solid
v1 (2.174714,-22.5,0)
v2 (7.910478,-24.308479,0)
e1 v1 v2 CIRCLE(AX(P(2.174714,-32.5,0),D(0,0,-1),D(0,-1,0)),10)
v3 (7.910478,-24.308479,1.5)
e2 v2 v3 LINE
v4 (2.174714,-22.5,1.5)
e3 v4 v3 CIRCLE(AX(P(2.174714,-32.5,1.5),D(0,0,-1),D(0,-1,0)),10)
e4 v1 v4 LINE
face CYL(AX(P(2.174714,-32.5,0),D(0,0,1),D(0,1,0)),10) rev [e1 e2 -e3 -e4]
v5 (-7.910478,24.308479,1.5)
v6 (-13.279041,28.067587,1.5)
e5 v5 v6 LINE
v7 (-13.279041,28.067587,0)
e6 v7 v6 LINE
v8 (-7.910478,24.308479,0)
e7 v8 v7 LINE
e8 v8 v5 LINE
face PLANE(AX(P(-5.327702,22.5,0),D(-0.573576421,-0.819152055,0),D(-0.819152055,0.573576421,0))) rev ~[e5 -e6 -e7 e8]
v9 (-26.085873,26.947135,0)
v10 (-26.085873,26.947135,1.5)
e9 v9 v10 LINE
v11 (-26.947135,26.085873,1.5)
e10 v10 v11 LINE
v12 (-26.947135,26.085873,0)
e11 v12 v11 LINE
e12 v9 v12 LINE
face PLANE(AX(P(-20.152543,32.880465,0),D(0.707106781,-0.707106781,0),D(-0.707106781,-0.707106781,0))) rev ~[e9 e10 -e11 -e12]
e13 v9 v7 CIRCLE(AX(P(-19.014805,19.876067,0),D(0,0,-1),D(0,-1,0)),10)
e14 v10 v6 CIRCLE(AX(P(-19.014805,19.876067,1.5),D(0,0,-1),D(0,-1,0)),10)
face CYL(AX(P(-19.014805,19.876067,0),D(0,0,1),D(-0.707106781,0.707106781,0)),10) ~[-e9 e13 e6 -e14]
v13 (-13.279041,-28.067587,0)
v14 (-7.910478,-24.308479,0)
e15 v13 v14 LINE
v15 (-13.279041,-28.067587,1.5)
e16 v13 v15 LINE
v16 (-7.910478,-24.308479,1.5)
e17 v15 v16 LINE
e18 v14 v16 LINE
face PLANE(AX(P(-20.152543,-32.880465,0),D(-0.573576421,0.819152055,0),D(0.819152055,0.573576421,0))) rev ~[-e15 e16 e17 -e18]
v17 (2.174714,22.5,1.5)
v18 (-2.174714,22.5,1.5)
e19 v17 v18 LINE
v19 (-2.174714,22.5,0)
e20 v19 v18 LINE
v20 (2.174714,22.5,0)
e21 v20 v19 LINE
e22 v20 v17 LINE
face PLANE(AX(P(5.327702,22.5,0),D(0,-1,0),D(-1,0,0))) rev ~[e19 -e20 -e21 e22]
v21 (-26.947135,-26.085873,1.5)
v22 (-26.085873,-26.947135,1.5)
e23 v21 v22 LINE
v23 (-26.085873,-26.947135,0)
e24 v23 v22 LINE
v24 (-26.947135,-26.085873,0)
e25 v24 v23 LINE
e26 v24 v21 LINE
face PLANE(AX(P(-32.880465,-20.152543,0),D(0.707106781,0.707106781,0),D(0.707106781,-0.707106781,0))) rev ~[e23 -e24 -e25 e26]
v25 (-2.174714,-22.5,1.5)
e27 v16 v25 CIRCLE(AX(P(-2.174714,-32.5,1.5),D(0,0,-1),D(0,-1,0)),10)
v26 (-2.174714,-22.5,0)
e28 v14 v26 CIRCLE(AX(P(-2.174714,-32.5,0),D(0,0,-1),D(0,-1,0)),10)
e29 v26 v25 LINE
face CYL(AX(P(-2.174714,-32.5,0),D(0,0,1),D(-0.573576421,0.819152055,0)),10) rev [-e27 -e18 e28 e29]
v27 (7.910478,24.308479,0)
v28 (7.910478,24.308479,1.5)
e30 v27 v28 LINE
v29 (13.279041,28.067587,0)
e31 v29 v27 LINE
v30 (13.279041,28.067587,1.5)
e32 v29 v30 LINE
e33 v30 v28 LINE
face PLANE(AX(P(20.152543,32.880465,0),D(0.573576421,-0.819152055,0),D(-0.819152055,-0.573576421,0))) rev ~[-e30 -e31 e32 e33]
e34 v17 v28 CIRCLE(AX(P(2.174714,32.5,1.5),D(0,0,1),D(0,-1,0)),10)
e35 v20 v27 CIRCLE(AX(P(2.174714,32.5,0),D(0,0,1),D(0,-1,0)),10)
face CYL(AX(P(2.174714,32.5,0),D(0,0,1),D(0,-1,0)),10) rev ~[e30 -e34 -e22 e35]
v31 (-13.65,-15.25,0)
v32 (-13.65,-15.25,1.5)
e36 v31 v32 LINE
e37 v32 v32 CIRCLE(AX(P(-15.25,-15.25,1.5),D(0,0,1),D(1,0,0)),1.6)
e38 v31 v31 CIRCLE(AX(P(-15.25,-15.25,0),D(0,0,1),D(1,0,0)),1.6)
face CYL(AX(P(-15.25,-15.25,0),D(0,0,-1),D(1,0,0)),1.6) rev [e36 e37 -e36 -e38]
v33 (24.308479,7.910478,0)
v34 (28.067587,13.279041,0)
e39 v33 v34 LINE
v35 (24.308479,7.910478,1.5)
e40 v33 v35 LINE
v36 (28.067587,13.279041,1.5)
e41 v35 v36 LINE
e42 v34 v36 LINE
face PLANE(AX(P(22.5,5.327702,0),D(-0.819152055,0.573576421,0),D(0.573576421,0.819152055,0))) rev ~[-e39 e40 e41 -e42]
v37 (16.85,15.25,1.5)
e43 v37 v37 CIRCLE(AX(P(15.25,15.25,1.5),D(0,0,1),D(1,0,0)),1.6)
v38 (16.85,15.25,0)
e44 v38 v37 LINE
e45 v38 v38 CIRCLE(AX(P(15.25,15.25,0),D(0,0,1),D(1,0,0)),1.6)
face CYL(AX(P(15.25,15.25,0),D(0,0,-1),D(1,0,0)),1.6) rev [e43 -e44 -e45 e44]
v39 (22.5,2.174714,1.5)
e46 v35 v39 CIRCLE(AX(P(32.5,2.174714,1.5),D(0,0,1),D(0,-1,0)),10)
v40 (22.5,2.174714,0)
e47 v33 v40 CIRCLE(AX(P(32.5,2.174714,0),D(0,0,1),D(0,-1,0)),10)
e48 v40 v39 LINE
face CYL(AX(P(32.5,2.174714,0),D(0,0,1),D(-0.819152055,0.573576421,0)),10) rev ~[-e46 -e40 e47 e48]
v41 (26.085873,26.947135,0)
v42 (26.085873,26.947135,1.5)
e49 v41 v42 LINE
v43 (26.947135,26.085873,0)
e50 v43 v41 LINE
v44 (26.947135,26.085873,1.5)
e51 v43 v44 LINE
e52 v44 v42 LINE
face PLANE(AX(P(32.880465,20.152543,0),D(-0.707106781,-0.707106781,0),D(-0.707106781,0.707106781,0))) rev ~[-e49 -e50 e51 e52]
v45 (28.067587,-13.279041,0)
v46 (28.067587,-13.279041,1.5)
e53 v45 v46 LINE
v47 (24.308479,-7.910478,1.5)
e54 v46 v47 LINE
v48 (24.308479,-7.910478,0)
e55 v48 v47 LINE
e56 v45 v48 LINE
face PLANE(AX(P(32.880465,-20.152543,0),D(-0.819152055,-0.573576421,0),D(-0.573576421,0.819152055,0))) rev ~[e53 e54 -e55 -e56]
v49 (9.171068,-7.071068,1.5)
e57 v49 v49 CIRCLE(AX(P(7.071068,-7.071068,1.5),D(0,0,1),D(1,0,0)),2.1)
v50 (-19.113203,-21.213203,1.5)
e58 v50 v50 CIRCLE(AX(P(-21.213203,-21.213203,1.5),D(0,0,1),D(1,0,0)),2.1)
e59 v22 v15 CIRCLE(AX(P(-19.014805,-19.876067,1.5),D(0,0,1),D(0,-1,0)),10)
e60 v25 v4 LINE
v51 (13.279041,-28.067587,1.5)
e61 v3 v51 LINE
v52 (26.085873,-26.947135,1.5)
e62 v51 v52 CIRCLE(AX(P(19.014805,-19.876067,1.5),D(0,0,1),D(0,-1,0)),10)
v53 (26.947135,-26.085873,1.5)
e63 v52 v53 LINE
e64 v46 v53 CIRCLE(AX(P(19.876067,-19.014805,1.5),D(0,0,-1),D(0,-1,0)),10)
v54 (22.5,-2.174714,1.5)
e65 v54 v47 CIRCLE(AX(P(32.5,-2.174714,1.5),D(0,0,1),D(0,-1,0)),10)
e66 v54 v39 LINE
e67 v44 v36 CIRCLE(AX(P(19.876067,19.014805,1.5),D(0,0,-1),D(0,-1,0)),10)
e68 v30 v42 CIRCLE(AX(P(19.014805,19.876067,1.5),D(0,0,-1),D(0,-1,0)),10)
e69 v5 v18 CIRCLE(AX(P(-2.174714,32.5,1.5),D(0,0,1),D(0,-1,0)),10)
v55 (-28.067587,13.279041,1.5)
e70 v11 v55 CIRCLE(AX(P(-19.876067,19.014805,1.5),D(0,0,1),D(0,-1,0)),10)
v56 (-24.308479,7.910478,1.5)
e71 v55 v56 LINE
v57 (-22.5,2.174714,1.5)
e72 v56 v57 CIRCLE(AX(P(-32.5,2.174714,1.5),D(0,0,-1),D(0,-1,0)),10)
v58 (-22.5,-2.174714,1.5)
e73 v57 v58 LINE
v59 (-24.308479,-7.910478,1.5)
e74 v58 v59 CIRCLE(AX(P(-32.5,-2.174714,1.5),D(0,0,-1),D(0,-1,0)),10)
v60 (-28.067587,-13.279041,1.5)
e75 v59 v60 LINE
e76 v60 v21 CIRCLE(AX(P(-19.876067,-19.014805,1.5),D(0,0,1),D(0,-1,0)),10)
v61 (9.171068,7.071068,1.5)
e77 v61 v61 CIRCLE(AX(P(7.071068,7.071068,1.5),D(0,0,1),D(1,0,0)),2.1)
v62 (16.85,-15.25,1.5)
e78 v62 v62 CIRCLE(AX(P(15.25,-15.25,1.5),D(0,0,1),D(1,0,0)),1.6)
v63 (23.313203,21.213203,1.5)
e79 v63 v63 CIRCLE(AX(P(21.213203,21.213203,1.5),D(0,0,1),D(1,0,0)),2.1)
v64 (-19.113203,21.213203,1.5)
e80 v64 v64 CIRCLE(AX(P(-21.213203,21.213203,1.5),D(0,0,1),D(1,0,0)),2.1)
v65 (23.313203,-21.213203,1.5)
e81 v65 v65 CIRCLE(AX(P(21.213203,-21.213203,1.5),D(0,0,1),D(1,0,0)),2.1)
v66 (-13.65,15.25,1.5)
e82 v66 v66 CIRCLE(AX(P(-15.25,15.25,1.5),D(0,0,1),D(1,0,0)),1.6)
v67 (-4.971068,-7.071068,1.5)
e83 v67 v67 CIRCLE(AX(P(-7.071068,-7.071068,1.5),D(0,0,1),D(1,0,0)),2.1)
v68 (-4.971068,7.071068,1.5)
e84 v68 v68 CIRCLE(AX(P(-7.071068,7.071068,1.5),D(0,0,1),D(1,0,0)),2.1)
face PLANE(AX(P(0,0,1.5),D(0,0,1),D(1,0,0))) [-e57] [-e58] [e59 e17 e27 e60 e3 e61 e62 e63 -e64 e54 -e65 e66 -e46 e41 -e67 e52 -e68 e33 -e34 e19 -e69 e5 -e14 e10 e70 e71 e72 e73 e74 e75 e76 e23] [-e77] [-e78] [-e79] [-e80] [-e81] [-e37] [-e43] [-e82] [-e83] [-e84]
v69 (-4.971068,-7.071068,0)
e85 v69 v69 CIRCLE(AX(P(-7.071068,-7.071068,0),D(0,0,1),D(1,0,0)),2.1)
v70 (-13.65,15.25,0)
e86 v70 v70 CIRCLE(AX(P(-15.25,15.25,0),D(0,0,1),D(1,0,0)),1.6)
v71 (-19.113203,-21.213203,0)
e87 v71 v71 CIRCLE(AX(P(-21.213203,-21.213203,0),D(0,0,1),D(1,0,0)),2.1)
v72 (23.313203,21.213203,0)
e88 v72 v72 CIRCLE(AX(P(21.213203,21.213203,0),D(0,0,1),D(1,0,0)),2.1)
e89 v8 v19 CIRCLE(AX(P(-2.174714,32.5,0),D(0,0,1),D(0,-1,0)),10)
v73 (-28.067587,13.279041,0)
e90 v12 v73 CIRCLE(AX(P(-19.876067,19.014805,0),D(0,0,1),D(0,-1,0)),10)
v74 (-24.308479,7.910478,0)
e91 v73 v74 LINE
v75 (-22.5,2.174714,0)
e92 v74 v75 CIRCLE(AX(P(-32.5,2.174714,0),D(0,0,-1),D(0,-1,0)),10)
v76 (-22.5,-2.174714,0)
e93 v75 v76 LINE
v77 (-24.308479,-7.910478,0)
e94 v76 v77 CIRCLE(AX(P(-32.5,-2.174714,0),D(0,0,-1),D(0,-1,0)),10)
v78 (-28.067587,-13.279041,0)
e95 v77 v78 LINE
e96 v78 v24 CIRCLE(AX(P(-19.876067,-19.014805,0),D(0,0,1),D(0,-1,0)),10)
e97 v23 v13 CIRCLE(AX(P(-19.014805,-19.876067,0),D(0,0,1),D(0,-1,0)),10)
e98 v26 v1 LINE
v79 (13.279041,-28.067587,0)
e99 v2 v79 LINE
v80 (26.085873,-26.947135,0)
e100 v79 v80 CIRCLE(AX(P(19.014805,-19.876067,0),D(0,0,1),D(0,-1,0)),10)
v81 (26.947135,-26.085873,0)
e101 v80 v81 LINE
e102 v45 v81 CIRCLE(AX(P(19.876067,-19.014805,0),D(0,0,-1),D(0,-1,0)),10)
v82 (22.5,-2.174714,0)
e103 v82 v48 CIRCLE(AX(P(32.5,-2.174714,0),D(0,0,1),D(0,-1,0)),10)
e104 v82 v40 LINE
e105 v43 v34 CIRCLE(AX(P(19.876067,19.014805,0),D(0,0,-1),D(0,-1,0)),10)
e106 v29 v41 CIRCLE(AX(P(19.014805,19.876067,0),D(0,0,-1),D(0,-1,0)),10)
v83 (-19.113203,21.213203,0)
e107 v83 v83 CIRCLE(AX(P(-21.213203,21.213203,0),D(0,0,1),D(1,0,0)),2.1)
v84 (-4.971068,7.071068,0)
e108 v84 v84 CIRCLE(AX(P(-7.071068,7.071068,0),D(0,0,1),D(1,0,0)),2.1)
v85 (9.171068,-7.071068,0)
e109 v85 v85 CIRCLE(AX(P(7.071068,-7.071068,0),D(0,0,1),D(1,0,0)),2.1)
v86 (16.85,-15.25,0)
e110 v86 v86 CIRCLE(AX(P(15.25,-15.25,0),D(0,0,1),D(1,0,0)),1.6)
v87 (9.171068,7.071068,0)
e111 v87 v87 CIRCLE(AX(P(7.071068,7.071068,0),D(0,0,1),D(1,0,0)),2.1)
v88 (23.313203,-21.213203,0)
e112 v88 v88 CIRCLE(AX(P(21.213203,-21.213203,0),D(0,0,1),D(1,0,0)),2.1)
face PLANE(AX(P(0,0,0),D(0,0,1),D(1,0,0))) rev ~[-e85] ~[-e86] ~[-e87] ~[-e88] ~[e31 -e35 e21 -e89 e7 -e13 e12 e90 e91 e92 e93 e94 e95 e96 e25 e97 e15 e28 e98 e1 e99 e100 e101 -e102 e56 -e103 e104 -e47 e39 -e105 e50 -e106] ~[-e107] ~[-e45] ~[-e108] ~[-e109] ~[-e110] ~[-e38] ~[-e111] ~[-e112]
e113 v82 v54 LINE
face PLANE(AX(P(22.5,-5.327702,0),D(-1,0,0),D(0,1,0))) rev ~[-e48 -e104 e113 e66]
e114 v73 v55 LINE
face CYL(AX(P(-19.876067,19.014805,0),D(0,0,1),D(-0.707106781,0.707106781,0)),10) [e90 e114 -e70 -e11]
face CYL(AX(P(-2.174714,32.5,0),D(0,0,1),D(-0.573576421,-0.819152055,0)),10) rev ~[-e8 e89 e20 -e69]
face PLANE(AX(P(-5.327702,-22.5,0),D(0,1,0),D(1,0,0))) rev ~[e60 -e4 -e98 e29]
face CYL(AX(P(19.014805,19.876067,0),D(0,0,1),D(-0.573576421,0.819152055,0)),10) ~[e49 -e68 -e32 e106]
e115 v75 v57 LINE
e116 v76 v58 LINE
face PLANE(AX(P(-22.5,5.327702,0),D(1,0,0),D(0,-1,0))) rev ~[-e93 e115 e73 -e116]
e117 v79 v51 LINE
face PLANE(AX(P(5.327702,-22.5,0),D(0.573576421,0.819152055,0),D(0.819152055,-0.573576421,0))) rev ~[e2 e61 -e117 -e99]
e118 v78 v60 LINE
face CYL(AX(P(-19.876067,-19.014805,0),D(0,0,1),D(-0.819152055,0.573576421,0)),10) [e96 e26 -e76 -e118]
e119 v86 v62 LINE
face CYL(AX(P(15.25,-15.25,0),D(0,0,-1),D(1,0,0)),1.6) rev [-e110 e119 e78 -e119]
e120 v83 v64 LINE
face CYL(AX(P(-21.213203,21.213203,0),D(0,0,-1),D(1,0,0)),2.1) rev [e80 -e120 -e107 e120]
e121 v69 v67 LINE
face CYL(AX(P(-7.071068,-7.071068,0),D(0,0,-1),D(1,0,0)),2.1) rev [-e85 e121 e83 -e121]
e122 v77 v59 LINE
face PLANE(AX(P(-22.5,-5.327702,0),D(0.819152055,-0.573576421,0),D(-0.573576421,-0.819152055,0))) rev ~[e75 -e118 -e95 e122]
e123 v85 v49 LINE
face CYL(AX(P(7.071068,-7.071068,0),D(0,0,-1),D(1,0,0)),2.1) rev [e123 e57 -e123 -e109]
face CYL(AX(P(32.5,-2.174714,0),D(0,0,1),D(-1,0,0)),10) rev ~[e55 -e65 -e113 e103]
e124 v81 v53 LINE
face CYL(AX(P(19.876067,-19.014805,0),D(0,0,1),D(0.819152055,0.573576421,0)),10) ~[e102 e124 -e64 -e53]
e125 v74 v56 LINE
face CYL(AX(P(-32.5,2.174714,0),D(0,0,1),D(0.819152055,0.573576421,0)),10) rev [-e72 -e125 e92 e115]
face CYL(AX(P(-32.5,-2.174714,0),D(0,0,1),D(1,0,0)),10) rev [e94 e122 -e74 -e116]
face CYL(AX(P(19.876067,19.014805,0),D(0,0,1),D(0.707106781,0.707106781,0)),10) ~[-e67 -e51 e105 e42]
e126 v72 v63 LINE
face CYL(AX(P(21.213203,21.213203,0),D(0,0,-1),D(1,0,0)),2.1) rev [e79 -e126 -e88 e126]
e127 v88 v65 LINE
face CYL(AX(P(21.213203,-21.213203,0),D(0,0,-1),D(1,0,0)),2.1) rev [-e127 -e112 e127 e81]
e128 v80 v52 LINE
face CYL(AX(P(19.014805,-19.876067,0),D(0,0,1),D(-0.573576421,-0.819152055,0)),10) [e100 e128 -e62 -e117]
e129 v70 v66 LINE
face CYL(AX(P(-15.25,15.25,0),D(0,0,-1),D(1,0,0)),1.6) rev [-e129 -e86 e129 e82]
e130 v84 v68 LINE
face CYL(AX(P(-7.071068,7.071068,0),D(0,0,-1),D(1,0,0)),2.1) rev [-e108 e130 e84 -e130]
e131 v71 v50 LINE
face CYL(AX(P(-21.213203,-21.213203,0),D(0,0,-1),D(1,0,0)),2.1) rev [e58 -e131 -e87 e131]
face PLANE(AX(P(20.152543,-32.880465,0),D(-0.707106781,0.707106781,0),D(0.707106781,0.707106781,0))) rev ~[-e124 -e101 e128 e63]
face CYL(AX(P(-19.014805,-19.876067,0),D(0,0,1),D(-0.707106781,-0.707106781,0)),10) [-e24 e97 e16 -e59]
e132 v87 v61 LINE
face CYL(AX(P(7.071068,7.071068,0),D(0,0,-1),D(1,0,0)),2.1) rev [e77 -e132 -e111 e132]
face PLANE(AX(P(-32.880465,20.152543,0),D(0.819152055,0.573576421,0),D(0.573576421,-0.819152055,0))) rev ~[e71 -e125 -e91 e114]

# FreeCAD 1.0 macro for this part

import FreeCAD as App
import Part
import Sketcher
Q = App.Units.Quantity


def edges_at(feature, points):
    """Names of the edges that pass closest to the given points."""
    edges = feature.Shape.Edges
    near = lambda p: min(range(len(edges)), key=lambda i: edges[i].distToShape(Part.Vertex(*p))[0])
    return sorted({f"Edge{near(p) + 1}" for p in points})

doc = App.newDocument("Part")
body = doc.addObject("PartDesign::Body", "Body")

# Sketch on XY plane
sketch1 = body.newObject("Sketcher::SketchObject", "Sketch")
sketch1.AttachmentSupport = (doc.getObject("XY_Plane"), [""])
sketch1.MapMode = "FlatFace"
sketch1.addGeometry([
    Part.LineSegment(App.Vector(-20.2, 32.9, 0), App.Vector(-32.9, 20.2, 0)),  # 0
    Part.LineSegment(App.Vector(-32.9, 20.2, 0), App.Vector(-22.5, 5.3, 0)),  # 1
    Part.LineSegment(App.Vector(-22.5, 5.3, 0), App.Vector(-22.5, -5.3, 0)),  # 2
    Part.LineSegment(App.Vector(-22.5, -5.3, 0), App.Vector(-32.9, -20.2, 0)),  # 3
    Part.LineSegment(App.Vector(-32.9, -20.2, 0), App.Vector(-20.2, -32.9, 0)),  # 4
    Part.LineSegment(App.Vector(-20.2, -32.9, 0), App.Vector(-5.3, -22.5, 0)),  # 5
    Part.LineSegment(App.Vector(-5.3, -22.5, 0), App.Vector(5.3, -22.5, 0)),  # 6
    Part.LineSegment(App.Vector(5.3, -22.5, 0), App.Vector(20.2, -32.9, 0)),  # 7
    Part.LineSegment(App.Vector(20.2, -32.9, 0), App.Vector(32.9, -20.2, 0)),  # 8
    Part.LineSegment(App.Vector(32.9, -20.2, 0), App.Vector(22.5, -5.3, 0)),  # 9
    Part.LineSegment(App.Vector(22.5, -5.3, 0), App.Vector(22.5, 5.3, 0)),  # 10
    Part.LineSegment(App.Vector(22.5, 5.3, 0), App.Vector(32.9, 20.2, 0)),  # 11
    Part.LineSegment(App.Vector(32.9, 20.2, 0), App.Vector(20.2, 32.9, 0)),  # 12
    Part.LineSegment(App.Vector(20.2, 32.9, 0), App.Vector(5.3, 22.5, 0)),  # 13
    Part.LineSegment(App.Vector(5.3, 22.5, 0), App.Vector(-5.3, 22.5, 0)),  # 14
    Part.LineSegment(App.Vector(-5.3, 22.5, 0), App.Vector(-20.2, 32.9, 0)),  # 15
    Part.Circle(App.Vector(-21.2, -21.2, 0), App.Vector(0, 0, 1), 2.1),  # 16
    Part.Circle(App.Vector(-15.2, -15.2, 0), App.Vector(0, 0, 1), 1.6),  # 17
    Part.Circle(App.Vector(-7.1, -7.1, 0), App.Vector(0, 0, 1), 2.1),  # 18
    Part.Circle(App.Vector(21.2, -21.2, 0), App.Vector(0, 0, 1), 2.1),  # 19
    Part.Circle(App.Vector(15.2, -15.2, 0), App.Vector(0, 0, 1), 1.6),  # 20
    Part.Circle(App.Vector(7.1, -7.1, 0), App.Vector(0, 0, 1), 2.1),  # 21
    Part.Circle(App.Vector(-7.1, 7.1, 0), App.Vector(0, 0, 1), 2.1),  # 22
    Part.Circle(App.Vector(-15.2, 15.2, 0), App.Vector(0, 0, 1), 1.6),  # 23
    Part.Circle(App.Vector(-21.2, 21.2, 0), App.Vector(0, 0, 1), 2.1),  # 24
    Part.Circle(App.Vector(7.1, 7.1, 0), App.Vector(0, 0, 1), 2.1),  # 25
    Part.Circle(App.Vector(15.2, 15.2, 0), App.Vector(0, 0, 1), 1.6),  # 26
    Part.Circle(App.Vector(21.2, 21.2, 0), App.Vector(0, 0, 1), 2.1),  # 27
], False)
sketch1.addConstraint([
    Sketcher.Constraint("Coincident", 0, 2, 1, 1),
    Sketcher.Constraint("Coincident", 1, 2, 2, 1),
    Sketcher.Constraint("Coincident", 2, 2, 3, 1),
    Sketcher.Constraint("Coincident", 3, 2, 4, 1),
    Sketcher.Constraint("Coincident", 4, 2, 5, 1),
    Sketcher.Constraint("Coincident", 5, 2, 6, 1),
    Sketcher.Constraint("Coincident", 6, 2, 7, 1),
    Sketcher.Constraint("Coincident", 7, 2, 8, 1),
    Sketcher.Constraint("Coincident", 8, 2, 9, 1),
    Sketcher.Constraint("Coincident", 9, 2, 10, 1),
    Sketcher.Constraint("Coincident", 10, 2, 11, 1),
    Sketcher.Constraint("Coincident", 11, 2, 12, 1),
    Sketcher.Constraint("Coincident", 12, 2, 13, 1),
    Sketcher.Constraint("Coincident", 13, 2, 14, 1),
    Sketcher.Constraint("Coincident", 14, 2, 15, 1),
    Sketcher.Constraint("Coincident", 15, 2, 0, 1),
    Sketcher.Constraint("Vertical", 2),
    Sketcher.Constraint("Horizontal", 6),
    Sketcher.Constraint("Vertical", 10),
    Sketcher.Constraint("Horizontal", 14),
    Sketcher.Constraint("Equal", 16, 18),
    Sketcher.Constraint("Equal", 18, 19),
    Sketcher.Constraint("Equal", 17, 20),
    Sketcher.Constraint("Equal", 19, 21),
    Sketcher.Constraint("Equal", 21, 22),
    Sketcher.Constraint("Equal", 20, 23),
    Sketcher.Constraint("Equal", 22, 24),
    Sketcher.Constraint("Equal", 24, 25),
    Sketcher.Constraint("Equal", 23, 26),
    Sketcher.Constraint("Equal", 25, 27),
    Sketcher.Constraint("Symmetric", 21, 3, 22, 3, -1, 1),
    Sketcher.Constraint("Symmetric", 20, 3, 23, 3, -1, 1),
    Sketcher.Constraint("Symmetric", 19, 3, 24, 3, -1, 1),
    Sketcher.Constraint("Symmetric", 18, 3, 25, 3, -1, 1),
    Sketcher.Constraint("Symmetric", 17, 3, 26, 3, -1, 1),
    Sketcher.Constraint("Symmetric", 16, 3, 27, 3, -1, 1),
    Sketcher.Constraint("Symmetric", 0, 2, 8, 2, -1, 1),
    Sketcher.Constraint("Symmetric", 1, 2, 9, 2, -1, 1),
    Sketcher.Constraint("Symmetric", 3, 2, 11, 2, -1, 1),
    Sketcher.Constraint("Symmetric", 4, 2, 12, 2, -1, 1),
    Sketcher.Constraint("Symmetric", 5, 2, 13, 2, -1, 1),
    Sketcher.Constraint("Symmetric", 7, 2, 15, 2, -1, 1),
    Sketcher.Constraint("Symmetric", 16, 3, 19, 3, -2),
    Sketcher.Constraint("Symmetric", 17, 3, 20, 3, -2),
    Sketcher.Constraint("Symmetric", 18, 3, 21, 3, -2),
    Sketcher.Constraint("Symmetric", 4, 2, 7, 2, -2),
    Sketcher.Constraint("Symmetric", 3, 2, 8, 2, -2),
    Sketcher.Constraint("Perpendicular", 0, 4),
    Sketcher.Constraint("Perpendicular", 1, 5),
    Sketcher.Constraint("Perpendicular", 3, 7),
    Sketcher.Constraint("Perpendicular", 7, 11),
    Sketcher.Constraint("Perpendicular", 11, 15),
    Sketcher.Constraint("Horizontal", 2, 2, 9, 2),
    Sketcher.Constraint("Equal", 14, 2),
    Sketcher.Constraint("Equal", 3, 5),
    Sketcher.Constraint("Diameter", 16, Q("4.2 mm")),
    Sketcher.Constraint("Diameter", 17, Q("3.2 mm")),
    Sketcher.Constraint("Angle", 1, Q("-55.000001 deg")),
    Sketcher.Constraint("Distance", 0, Q("18 mm")),
    Sketcher.Constraint("DistanceX", 1, 2, -1, 1, Q("22.5 mm")),
    Sketcher.Constraint("DistanceX", 17, 3, 20, 3, Q("30.5 mm")),
    Sketcher.Constraint("DistanceY", 17, 3, 23, 3, Q("30.5 mm")),
    Sketcher.Constraint("DistanceY", 1, 2, 24, 3, Q("15.885501 mm")),
    Sketcher.Constraint("DistanceX", 16, 3, 5, 2, Q("15.885501 mm")),
    Sketcher.Constraint("Distance", 1, Q("18.097789 mm")),
    Sketcher.Constraint("DistanceX", 18, 3, -1, 1, Q("7.071068 mm")),
    Sketcher.Constraint("DistanceY", 18, 3, -1, 1, Q("7.071068 mm")),
])
pad1 = body.newObject("PartDesign::Pad", "Pad")
pad1.Profile = sketch1
pad1.Length = 1.5
doc.recompute()

fillet = body.newObject("PartDesign::Fillet", "Fillet")
fillet.Base = (pad1, edges_at(pad1, [
    (-32.88, 20.153, 0.75),
    (-22.5, 5.328, 0.75),
    (-22.5, -5.328, 0.75),
    (-32.88, -20.153, 0.75),
    (-20.153, -32.88, 0.75),
    (-5.328, -22.5, 0.75),
    (5.328, -22.5, 0.75),
    (20.153, -32.88, 0.75),
    (32.88, -20.153, 0.75),
    (22.5, -5.328, 0.75),
    (22.5, 5.328, 0.75),
    (32.88, 20.153, 0.75),
    (-20.153, 32.88, 0.75),
    (20.153, 32.88, 0.75),
    (5.328, 22.5, 0.75),
    (-5.328, 22.5, 0.75),
]))
fillet.Radius = 10

doc.recompute()
